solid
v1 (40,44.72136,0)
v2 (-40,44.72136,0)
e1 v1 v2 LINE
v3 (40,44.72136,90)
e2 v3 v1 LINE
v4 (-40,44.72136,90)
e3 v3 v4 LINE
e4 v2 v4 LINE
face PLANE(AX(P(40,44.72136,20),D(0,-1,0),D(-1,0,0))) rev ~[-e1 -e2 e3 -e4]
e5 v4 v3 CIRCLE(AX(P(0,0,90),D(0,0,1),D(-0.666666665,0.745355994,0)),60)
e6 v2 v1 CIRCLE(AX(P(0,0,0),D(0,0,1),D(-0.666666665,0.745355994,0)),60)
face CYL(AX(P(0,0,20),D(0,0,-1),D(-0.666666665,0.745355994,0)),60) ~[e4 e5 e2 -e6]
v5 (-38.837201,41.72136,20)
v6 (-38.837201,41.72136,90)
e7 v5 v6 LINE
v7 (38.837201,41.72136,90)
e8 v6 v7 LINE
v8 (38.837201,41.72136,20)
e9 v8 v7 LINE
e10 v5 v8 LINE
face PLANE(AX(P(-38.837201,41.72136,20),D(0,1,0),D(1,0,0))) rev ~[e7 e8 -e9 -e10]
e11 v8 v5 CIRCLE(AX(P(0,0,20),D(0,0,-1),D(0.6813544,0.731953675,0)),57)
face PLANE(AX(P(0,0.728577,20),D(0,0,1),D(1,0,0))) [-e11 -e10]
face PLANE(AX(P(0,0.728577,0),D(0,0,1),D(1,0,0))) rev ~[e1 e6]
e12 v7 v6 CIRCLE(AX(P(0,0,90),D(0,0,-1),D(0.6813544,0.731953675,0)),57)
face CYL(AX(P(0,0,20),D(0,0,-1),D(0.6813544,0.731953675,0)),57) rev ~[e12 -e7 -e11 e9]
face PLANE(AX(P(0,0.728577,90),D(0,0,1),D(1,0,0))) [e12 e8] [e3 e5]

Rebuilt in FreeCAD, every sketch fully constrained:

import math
import FreeCAD as App
import Part
import Sketcher

V = App.Vector
Q = App.Units.Quantity

doc = App.newDocument("Part")
body = doc.addObject("PartDesign::Body", "Body")

# Sketch on XY plane
sketch1 = doc.addObject("Sketcher::SketchObject", "Sketch")
body.addObject(sketch1)
sketch1.AttachmentSupport = (doc.XY_Plane, [""])
sketch1.MapMode = "FlatFace"
sketch1.addGeometry([
    Part.LineSegment(V(40, 45, 0), V(-40, 45, 0)),
    Part.ArcOfCircle(Part.Circle(V(0, 0, 0), V(0, 0, 1), 60), math.radians(132), math.radians(408)),
], False)
sketch1.addConstraint([
    Sketcher.Constraint("Coincident", 0, 1, 1, 2),
    Sketcher.Constraint("Coincident", 1, 1, 0, 2),
    Sketcher.Constraint("Horizontal", 0),
    Sketcher.Constraint("Coincident", 1, 3, -1, 1),
    Sketcher.Constraint("Radius", 1, Q("60 mm")),
    Sketcher.Constraint("DistanceX", 0, 2, 0, 1, Q("80 mm")),
])
pad1 = doc.addObject("PartDesign::Pad", "Pad")
body.addObject(pad1)
pad1.Profile = sketch1
pad1.Length = 20

# Sketch on XY plane
sketch2 = doc.addObject("Sketcher::SketchObject", "Sketch001")
body.addObject(sketch2)
sketch2.AttachmentSupport = (doc.XY_Plane, [""])
sketch2.MapMode = "FlatFace"
sketch2.AttachmentOffset = App.Placement(V(0, 0, 20), App.Rotation())
sketch2.addGeometry([
    Part.LineSegment(V(40, 45, 0), V(-40, 45, 0)),
    Part.ArcOfCircle(Part.Circle(V(0, 0, 0), V(0, 0, 1), 60), math.radians(132), math.radians(408)),
    Part.LineSegment(V(-39, 42, 0), V(39, 42, 0)),
    Part.ArcOfCircle(Part.Circle(V(0, 0, 0), V(0, 0, 1), 57), math.radians(133), math.radians(407)),
], False)
sketch2.addConstraint([
    Sketcher.Constraint("Coincident", 0, 1, 1, 2),
    Sketcher.Constraint("Coincident", 1, 1, 0, 2),
    Sketcher.Constraint("Coincident", 2, 1, 3, 1),
    Sketcher.Constraint("Coincident", 3, 2, 2, 2),
    Sketcher.Constraint("Horizontal", 0),
    Sketcher.Constraint("Horizontal", 2),
    Sketcher.Constraint("Coincident", 1, 3, -1, 1),
    Sketcher.Constraint("Coincident", 3, 3, -1, 1),
    Sketcher.Constraint("Radius", 1, Q("60 mm")),
    Sketcher.Constraint("Radius", 3, Q("57 mm")),
    Sketcher.Constraint("DistanceX", 0, 2, 0, 1, Q("80 mm")),
    Sketcher.Constraint("DistanceY", 2, 1, 1, 1, Q("3 mm")),
])
pad2 = doc.addObject("PartDesign::Pad", "Pad001")
body.addObject(pad2)
pad2.Profile = sketch2
pad2.Length = 70

doc.recompute()
